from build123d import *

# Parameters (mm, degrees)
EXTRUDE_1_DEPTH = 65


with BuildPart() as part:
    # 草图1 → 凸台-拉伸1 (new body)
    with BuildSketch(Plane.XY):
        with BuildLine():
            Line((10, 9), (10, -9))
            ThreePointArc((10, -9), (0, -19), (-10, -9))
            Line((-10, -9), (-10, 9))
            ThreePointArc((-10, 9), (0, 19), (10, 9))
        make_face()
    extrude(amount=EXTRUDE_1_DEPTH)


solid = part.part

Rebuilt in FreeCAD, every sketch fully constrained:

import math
import FreeCAD as App
import Part
import Sketcher
from FreeCAD import Vector

doc = App.newDocument("Part")
body = doc.addObject("PartDesign::Body", "Body")

sketch1 = body.newObject("Sketcher::SketchObject", "Sketch")
sketch1.AttachmentSupport = (doc.getObject("XY_Plane"), [""])
sketch1.MapMode = "FlatFace"
sketch1.addGeometry([
    Part.LineSegment(Vector(10, -9, 0), Vector(10, 9, 0)),
    Part.ArcOfCircle(Part.Circle(Vector(0, 9, 0), Vector(0, 0, 1), 10), math.radians(0), math.radians(180)),
    Part.LineSegment(Vector(-10, 9, 0), Vector(-10, -9, 0)),
    Part.ArcOfCircle(Part.Circle(Vector(0, -9, 0), Vector(0, 0, 1), 10), math.radians(180), math.radians(360)),
], False)
sketch1.addConstraint([
    Sketcher.Constraint("Tangent", 0, 2, 1, 1),
    Sketcher.Constraint("Tangent", 1, 2, 2, 1),
    Sketcher.Constraint("Tangent", 2, 2, 3, 1),
    Sketcher.Constraint("Tangent", 3, 2, 0, 1),
    Sketcher.Constraint("Vertical", 0),
    Sketcher.Constraint("Vertical", 2),
    Sketcher.Constraint("Symmetric", 1, 3, 3, 3, -1, 1),
    Sketcher.Constraint("Radius", 1, 10.0),
    Sketcher.Constraint("DistanceY", 0, 1, 0, 2, 18.0),
])
pad1 = body.newObject("PartDesign::Pad", "Pad")
pad1.Profile = sketch1
pad1.Length = 65

doc.recompute()
